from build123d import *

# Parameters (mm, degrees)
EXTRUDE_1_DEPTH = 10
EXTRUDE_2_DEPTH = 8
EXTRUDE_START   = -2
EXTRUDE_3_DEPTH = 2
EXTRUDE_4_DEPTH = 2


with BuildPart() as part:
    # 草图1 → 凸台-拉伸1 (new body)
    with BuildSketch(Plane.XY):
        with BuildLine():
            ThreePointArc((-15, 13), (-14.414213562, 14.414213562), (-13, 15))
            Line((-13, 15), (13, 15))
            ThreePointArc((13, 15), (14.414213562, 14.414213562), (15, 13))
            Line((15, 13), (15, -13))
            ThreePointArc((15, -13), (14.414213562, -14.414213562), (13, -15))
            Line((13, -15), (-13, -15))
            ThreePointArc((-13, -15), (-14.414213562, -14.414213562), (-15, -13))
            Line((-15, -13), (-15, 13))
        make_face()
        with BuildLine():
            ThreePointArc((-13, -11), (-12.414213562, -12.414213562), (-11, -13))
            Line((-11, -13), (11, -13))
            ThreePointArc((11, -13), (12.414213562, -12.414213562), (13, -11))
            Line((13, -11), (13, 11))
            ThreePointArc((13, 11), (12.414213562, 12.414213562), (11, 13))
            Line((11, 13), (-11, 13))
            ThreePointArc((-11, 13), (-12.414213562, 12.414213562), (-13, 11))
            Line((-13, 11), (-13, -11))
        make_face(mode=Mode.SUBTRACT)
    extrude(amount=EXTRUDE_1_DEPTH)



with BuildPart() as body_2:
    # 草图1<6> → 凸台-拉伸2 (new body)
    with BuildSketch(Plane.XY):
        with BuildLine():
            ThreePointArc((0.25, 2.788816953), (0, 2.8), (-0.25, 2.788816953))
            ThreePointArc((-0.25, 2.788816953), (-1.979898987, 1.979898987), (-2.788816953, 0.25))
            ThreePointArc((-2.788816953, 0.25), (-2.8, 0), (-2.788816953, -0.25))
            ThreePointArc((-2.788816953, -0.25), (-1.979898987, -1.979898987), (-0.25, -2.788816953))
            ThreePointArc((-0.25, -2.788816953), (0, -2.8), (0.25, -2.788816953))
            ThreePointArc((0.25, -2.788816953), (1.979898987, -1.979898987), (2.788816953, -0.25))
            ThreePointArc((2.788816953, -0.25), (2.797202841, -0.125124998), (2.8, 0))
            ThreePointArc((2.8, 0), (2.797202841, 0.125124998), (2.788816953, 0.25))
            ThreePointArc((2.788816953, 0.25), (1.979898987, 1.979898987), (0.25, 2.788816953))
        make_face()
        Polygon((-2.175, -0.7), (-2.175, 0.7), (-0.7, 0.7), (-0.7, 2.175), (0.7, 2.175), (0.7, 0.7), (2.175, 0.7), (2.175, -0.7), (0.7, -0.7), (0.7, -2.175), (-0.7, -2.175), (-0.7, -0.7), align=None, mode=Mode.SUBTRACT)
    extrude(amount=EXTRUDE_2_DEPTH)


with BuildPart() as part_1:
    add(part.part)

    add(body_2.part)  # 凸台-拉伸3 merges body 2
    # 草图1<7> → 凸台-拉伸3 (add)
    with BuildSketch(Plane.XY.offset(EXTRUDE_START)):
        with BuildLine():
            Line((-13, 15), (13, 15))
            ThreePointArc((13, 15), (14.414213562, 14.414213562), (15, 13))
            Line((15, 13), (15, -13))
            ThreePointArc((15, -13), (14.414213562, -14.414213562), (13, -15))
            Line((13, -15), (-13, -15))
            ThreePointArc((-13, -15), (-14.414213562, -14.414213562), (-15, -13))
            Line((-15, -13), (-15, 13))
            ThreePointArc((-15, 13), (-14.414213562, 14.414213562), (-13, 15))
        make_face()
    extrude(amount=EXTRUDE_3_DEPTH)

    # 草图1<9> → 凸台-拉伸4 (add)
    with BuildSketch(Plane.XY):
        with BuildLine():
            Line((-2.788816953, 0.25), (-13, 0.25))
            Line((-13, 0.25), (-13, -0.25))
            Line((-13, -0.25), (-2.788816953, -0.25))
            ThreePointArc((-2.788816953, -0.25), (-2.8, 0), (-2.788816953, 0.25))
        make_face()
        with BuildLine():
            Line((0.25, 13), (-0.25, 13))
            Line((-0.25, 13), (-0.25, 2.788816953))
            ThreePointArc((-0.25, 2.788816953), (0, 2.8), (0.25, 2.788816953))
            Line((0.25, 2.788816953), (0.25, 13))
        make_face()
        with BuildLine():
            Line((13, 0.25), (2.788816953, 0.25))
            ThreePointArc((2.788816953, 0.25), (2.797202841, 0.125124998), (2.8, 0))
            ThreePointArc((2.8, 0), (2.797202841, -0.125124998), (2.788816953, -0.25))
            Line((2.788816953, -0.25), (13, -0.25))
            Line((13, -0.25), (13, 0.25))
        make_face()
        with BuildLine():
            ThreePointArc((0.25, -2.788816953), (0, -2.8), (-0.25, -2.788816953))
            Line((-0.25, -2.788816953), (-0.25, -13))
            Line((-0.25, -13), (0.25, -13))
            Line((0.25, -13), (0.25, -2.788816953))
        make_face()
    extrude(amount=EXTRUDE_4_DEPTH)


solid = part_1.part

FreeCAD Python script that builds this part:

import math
import FreeCAD as App
import Part
import Sketcher
from FreeCAD import Vector
Q = App.Units.Quantity


def add_polygon(sketch, points):
    """Adds a closed chain of lines whose ends are joined by coincident constraints."""
    first, n = sketch.GeometryCount, len(points)
    for a, b in zip(points, points[1:] + points[:1]):
        sketch.addGeometry(Part.LineSegment(App.Vector(*a, 0), App.Vector(*b, 0)), False)
    for i in range(n):
        sketch.addConstraint(Sketcher.Constraint("Coincident", first + i, 2, first + (i + 1) % n, 1))

doc = App.newDocument("Part")
params = doc.addObject("Spreadsheet::Sheet", "Params")
for row, (alias, value) in enumerate([
    ("sketch1_radius", "2 mm"),
    ("sketch1_width", "26 mm"),
    ("pad1_length", "10 mm"),
    ("sketch2_radius", "2.8 mm"),
    ("sketch2_width", "1.4 mm"),
    ("pad2_length", "8 mm"),
    ("sketch3_radius", "2 mm"),
    ("sketch3_width", "26 mm"),
    ("pad3_length", "2 mm"),
    ("sketch4_radius", "2.8 mm"),
    ("sketch4_width", "0.5 mm"),
    ("pad4_length", "2 mm"),
], start=1):
    params.set(f"A{row}", alias)
    params.set(f"B{row}", "=" + value)
    params.setAlias(f"B{row}", alias)

body = doc.addObject("PartDesign::Body", "Body")

sketch1 = doc.addObject("Sketcher::SketchObject", "Sketch")
body.addObject(sketch1)
sketch1.AttachmentSupport = (doc.XY_Plane, [""])
sketch1.MapMode = "FlatFace"
sketch1.addGeometry(Part.ArcOfCircle(Part.Circle(Vector(-13, 13, 0), Vector(0, 0, 1), 2), math.radians(90), math.radians(180)), False)
sketch1.addGeometry(Part.LineSegment(Vector(-15, 13, 0), Vector(-15, -13, 0)), False)
sketch1.addGeometry(Part.ArcOfCircle(Part.Circle(Vector(-13, -13, 0), Vector(0, 0, 1), 2), math.radians(-180), math.radians(-90)), False)
sketch1.addGeometry(Part.LineSegment(Vector(-13, -15, 0), Vector(13, -15, 0)), False)
sketch1.addGeometry(Part.ArcOfCircle(Part.Circle(Vector(13, -13, 0), Vector(0, 0, 1), 2), math.radians(-90), math.radians(0)), False)
sketch1.addGeometry(Part.LineSegment(Vector(15, -13, 0), Vector(15, 13, 0)), False)
sketch1.addGeometry(Part.ArcOfCircle(Part.Circle(Vector(13, 13, 0), Vector(0, 0, 1), 2), math.radians(0), math.radians(90)), False)
sketch1.addGeometry(Part.LineSegment(Vector(13, 15, 0), Vector(-13, 15, 0)), False)
sketch1.addGeometry(Part.LineSegment(Vector(-13, -11, 0), Vector(-13, 11, 0)), False)
sketch1.addGeometry(Part.ArcOfCircle(Part.Circle(Vector(-11, 11, 0), Vector(0, 0, 1), 2), math.radians(90), math.radians(180)), False)
sketch1.addGeometry(Part.LineSegment(Vector(-11, 13, 0), Vector(11, 13, 0)), False)
sketch1.addGeometry(Part.ArcOfCircle(Part.Circle(Vector(11, 11, 0), Vector(0, 0, 1), 2), math.radians(0), math.radians(90)), False)
sketch1.addGeometry(Part.LineSegment(Vector(13, 11, 0), Vector(13, -11, 0)), False)
sketch1.addGeometry(Part.ArcOfCircle(Part.Circle(Vector(11, -11, 0), Vector(0, 0, 1), 2), math.radians(-90), math.radians(0)), False)
sketch1.addGeometry(Part.LineSegment(Vector(11, -13, 0), Vector(-11, -13, 0)), False)
sketch1.addGeometry(Part.ArcOfCircle(Part.Circle(Vector(-11, -11, 0), Vector(0, 0, 1), 2), math.radians(-180), math.radians(-90)), False)
sketch1.addConstraint(Sketcher.Constraint("Tangent", 0, 2, 1, 1))
sketch1.addConstraint(Sketcher.Constraint("Tangent", 1, 2, 2, 1))
sketch1.addConstraint(Sketcher.Constraint("Tangent", 2, 2, 3, 1))
sketch1.addConstraint(Sketcher.Constraint("Tangent", 3, 2, 4, 1))
sketch1.addConstraint(Sketcher.Constraint("Tangent", 4, 2, 5, 1))
sketch1.addConstraint(Sketcher.Constraint("Tangent", 5, 2, 6, 1))
sketch1.addConstraint(Sketcher.Constraint("Tangent", 6, 2, 7, 1))
sketch1.addConstraint(Sketcher.Constraint("Tangent", 7, 2, 0, 1))
sketch1.addConstraint(Sketcher.Constraint("Tangent", 8, 2, 9, 2))
sketch1.addConstraint(Sketcher.Constraint("Tangent", 9, 1, 10, 1))
sketch1.addConstraint(Sketcher.Constraint("Tangent", 10, 2, 11, 2))
sketch1.addConstraint(Sketcher.Constraint("Tangent", 11, 1, 12, 1))
sketch1.addConstraint(Sketcher.Constraint("Tangent", 12, 2, 13, 2))
sketch1.addConstraint(Sketcher.Constraint("Tangent", 13, 1, 14, 1))
sketch1.addConstraint(Sketcher.Constraint("Tangent", 14, 2, 15, 2))
sketch1.addConstraint(Sketcher.Constraint("Tangent", 15, 1, 8, 1))
sketch1.addConstraint(Sketcher.Constraint("Vertical", 1))
sketch1.addConstraint(Sketcher.Constraint("Horizontal", 3))
sketch1.addConstraint(Sketcher.Constraint("Vertical", 5))
sketch1.addConstraint(Sketcher.Constraint("Horizontal", 7))
sketch1.addConstraint(Sketcher.Constraint("Vertical", 8))
sketch1.addConstraint(Sketcher.Constraint("Horizontal", 10))
sketch1.addConstraint(Sketcher.Constraint("Vertical", 12))
sketch1.addConstraint(Sketcher.Constraint("Horizontal", 14))
sketch1.addConstraint(Sketcher.Constraint("Equal", 0, 2))
sketch1.addConstraint(Sketcher.Constraint("Equal", 2, 4))
sketch1.addConstraint(Sketcher.Constraint("Equal", 4, 6))
sketch1.addConstraint(Sketcher.Constraint("Equal", 6, 9))
sketch1.addConstraint(Sketcher.Constraint("Equal", 9, 11))
sketch1.addConstraint(Sketcher.Constraint("Equal", 11, 13))
sketch1.addConstraint(Sketcher.Constraint("Equal", 13, 15))
sketch1.addConstraint(Sketcher.Constraint("Symmetric", 0, 3, 4, 3, -1, 1))
sketch1.addConstraint(Sketcher.Constraint("Symmetric", 9, 3, 13, 3, -1, 1))
sketch1.addConstraint(Sketcher.Constraint("Horizontal", 5, 2, 9, 1))
sketch1.addConstraint(Sketcher.Constraint("Vertical", 7, 2, 8, 2))
sketch1.addConstraint(Sketcher.Constraint("Equal", 7, 1))
sketch1.addConstraint(Sketcher.Constraint("Radius", 0, Q("2 mm")))
sketch1.addConstraint(Sketcher.Constraint("DistanceX", 3, 1, 3, 2, Q("26 mm")))
sketch1.setExpression("Constraints[36]", "Params.sketch1_radius")
sketch1.setExpression("Constraints[37]", "Params.sketch1_width")
pad1 = doc.addObject("PartDesign::Pad", "Pad")
body.addObject(pad1)
pad1.Profile = sketch1
pad1.setExpression("Length", "Params.pad1_length")
body2 = doc.addObject("PartDesign::Body", "Body001")

sketch2 = doc.addObject("Sketcher::SketchObject", "Sketch001")
body2.addObject(sketch2)
sketch2.AttachmentSupport = (doc.getObject("XY_Plane001"), [""])
sketch2.MapMode = "FlatFace"
sketch2.addGeometry(Part.ArcOfCircle(Part.Circle(Vector(0, 0, 0), Vector(0, 0, 1), 2.8), math.radians(84.88), math.radians(95.12)), False)
sketch2.addGeometry(Part.ArcOfCircle(Part.Circle(Vector(0, 0, 0), Vector(0, 0, 1), 2.8), math.radians(95), math.radians(175)), False)
sketch2.addGeometry(Part.ArcOfCircle(Part.Circle(Vector(0, 0, 0), Vector(0, 0, 1), 2.8), math.radians(174.88), math.radians(185.12)), False)
sketch2.addGeometry(Part.ArcOfCircle(Part.Circle(Vector(0, 0, 0), Vector(0, 0, 1), 2.8), math.radians(-175), math.radians(-95)), False)
sketch2.addGeometry(Part.ArcOfCircle(Part.Circle(Vector(0, 0, 0), Vector(0, 0, 1), 2.8), math.radians(-95.12), math.radians(-84.88)), False)
sketch2.addGeometry(Part.ArcOfCircle(Part.Circle(Vector(0, 0, 0), Vector(0, 0, 1), 2.8), math.radians(-85), math.radians(-5)), False)
sketch2.addGeometry(Part.ArcOfCircle(Part.Circle(Vector(0, 0, 0), Vector(0, 0, 1), 2.8), math.radians(-5.12), math.radians(0)), False)
sketch2.addGeometry(Part.ArcOfCircle(Part.Circle(Vector(0, 0, 0), Vector(0, 0, 1), 2.8), math.radians(0), math.radians(5.12)), False)
sketch2.addGeometry(Part.ArcOfCircle(Part.Circle(Vector(0, 0, 0), Vector(0, 0, 1), 2.8), math.radians(5), math.radians(85)), False)
add_polygon(sketch2, [(-0.7, -0.7), (-2.17, -0.7), (-2.17, 0.7), (-0.7, 0.7), (-0.7, 2.17), (0.7, 2.17), (0.7, 0.7), (2.17, 0.7), (2.17, -0.7), (0.7, -0.7), (0.7, -2.17), (-0.7, -2.17)])
sketch2.addConstraint(Sketcher.Constraint("Tangent", 0, 2, 1, 1))
sketch2.addConstraint(Sketcher.Constraint("Tangent", 1, 2, 2, 1))
sketch2.addConstraint(Sketcher.Constraint("Tangent", 2, 2, 3, 1))
sketch2.addConstraint(Sketcher.Constraint("Tangent", 3, 2, 4, 1))
sketch2.addConstraint(Sketcher.Constraint("Tangent", 4, 2, 5, 1))
sketch2.addConstraint(Sketcher.Constraint("Tangent", 5, 2, 6, 1))
sketch2.addConstraint(Sketcher.Constraint("Tangent", 6, 2, 7, 1))
sketch2.addConstraint(Sketcher.Constraint("Tangent", 7, 2, 8, 1))
sketch2.addConstraint(Sketcher.Constraint("Tangent", 8, 2, 0, 1))
sketch2.addConstraint(Sketcher.Constraint("Horizontal", 9))
sketch2.addConstraint(Sketcher.Constraint("Vertical", 10))
sketch2.addConstraint(Sketcher.Constraint("Horizontal", 11))
sketch2.addConstraint(Sketcher.Constraint("Vertical", 12))
sketch2.addConstraint(Sketcher.Constraint("Horizontal", 13))
sketch2.addConstraint(Sketcher.Constraint("Vertical", 14))
sketch2.addConstraint(Sketcher.Constraint("Horizontal", 15))
sketch2.addConstraint(Sketcher.Constraint("Vertical", 16))
sketch2.addConstraint(Sketcher.Constraint("Horizontal", 17))
sketch2.addConstraint(Sketcher.Constraint("Vertical", 18))
sketch2.addConstraint(Sketcher.Constraint("Horizontal", 19))
sketch2.addConstraint(Sketcher.Constraint("Vertical", 20))
sketch2.addConstraint(Sketcher.Constraint("Coincident", 0, 3, -1, 1))
sketch2.addConstraint(Sketcher.Constraint("Coincident", 2, 3, -1, 1))
sketch2.addConstraint(Sketcher.Constraint("Coincident", 4, 3, -1, 1))
sketch2.addConstraint(Sketcher.Constraint("Coincident", 6, 3, -1, 1))
sketch2.addConstraint(Sketcher.Constraint("Symmetric", 9, 2, 15, 2, -1, 1))
sketch2.addConstraint(Sketcher.Constraint("Symmetric", 11, 2, 17, 2, -1, 1))
sketch2.addConstraint(Sketcher.Constraint("Symmetric", 13, 2, 19, 2, -1, 1))
sketch2.addConstraint(Sketcher.Constraint("Symmetric", 11, 2, 14, 2, -2))
sketch2.addConstraint(Sketcher.Constraint("PointOnObject", 6, 2, -1))
sketch2.addConstraint(Sketcher.Constraint("Horizontal", 3, 2, 4, 2))
sketch2.addConstraint(Sketcher.Constraint("Horizontal", 2, 2, 5, 2))
sketch2.addConstraint(Sketcher.Constraint("Horizontal", 1, 2, 7, 2))
sketch2.addConstraint(Sketcher.Constraint("Horizontal", 0, 2, 8, 2))
sketch2.addConstraint(Sketcher.Constraint("Vertical", 1, 2, 2, 2))
sketch2.addConstraint(Sketcher.Constraint("Vertical", 0, 2, 3, 2))
sketch2.addConstraint(Sketcher.Constraint("Equal", 19, 10))
sketch2.addConstraint(Sketcher.Constraint("Equal", 17, 12))
sketch2.addConstraint(Sketcher.Constraint("Radius", 0, Q("2.8 mm")))
sketch2.addConstraint(Sketcher.Constraint("DistanceX", 13, 1, 13, 2, Q("1.4 mm")))
sketch2.addConstraint(Sketcher.Constraint("DistanceY", 2, 2, 1, 2, Q("0.5 mm")))
sketch2.addConstraint(Sketcher.Constraint("DistanceX", 3, 2, 4, 2, Q("0.5 mm")))
sketch2.addConstraint(Sketcher.Constraint("DistanceX", 9, 2, 9, 1, Q("1.475 mm")))
sketch2.setExpression("Constraints[50]", "Params.sketch2_radius")
sketch2.setExpression("Constraints[51]", "Params.sketch2_width")
pad2 = doc.addObject("PartDesign::Pad", "Pad001")
body2.addObject(pad2)
pad2.Profile = sketch2
pad2.setExpression("Length", "Params.pad2_length")
body.AllowCompound = True
doc.recompute()

boolean = doc.addObject("PartDesign::Boolean", "Boolean")
body.addObject(boolean)
boolean.Type = "Fuse"
boolean.addObjects([body2])

sketch3 = doc.addObject("Sketcher::SketchObject", "Sketch002")
body.addObject(sketch3)
sketch3.AttachmentSupport = (doc.XY_Plane, [""])
sketch3.MapMode = "FlatFace"
sketch3.AttachmentOffset = App.Placement(Vector(0, 0, -2), App.Rotation())
sketch3.addGeometry(Part.LineSegment(Vector(13, 15, 0), Vector(-13, 15, 0)), False)
sketch3.addGeometry(Part.ArcOfCircle(Part.Circle(Vector(-13, 13, 0), Vector(0, 0, 1), 2), math.radians(90), math.radians(180)), False)
sketch3.addGeometry(Part.LineSegment(Vector(-15, 13, 0), Vector(-15, -13, 0)), False)
sketch3.addGeometry(Part.ArcOfCircle(Part.Circle(Vector(-13, -13, 0), Vector(0, 0, 1), 2), math.radians(-180), math.radians(-90)), False)
sketch3.addGeometry(Part.LineSegment(Vector(-13, -15, 0), Vector(13, -15, 0)), False)
sketch3.addGeometry(Part.ArcOfCircle(Part.Circle(Vector(13, -13, 0), Vector(0, 0, 1), 2), math.radians(-90), math.radians(0)), False)
sketch3.addGeometry(Part.LineSegment(Vector(15, -13, 0), Vector(15, 13, 0)), False)
sketch3.addGeometry(Part.ArcOfCircle(Part.Circle(Vector(13, 13, 0), Vector(0, 0, 1), 2), math.radians(0), math.radians(90)), False)
sketch3.addConstraint(Sketcher.Constraint("Tangent", 0, 2, 1, 1))
sketch3.addConstraint(Sketcher.Constraint("Tangent", 1, 2, 2, 1))
sketch3.addConstraint(Sketcher.Constraint("Tangent", 2, 2, 3, 1))
sketch3.addConstraint(Sketcher.Constraint("Tangent", 3, 2, 4, 1))
sketch3.addConstraint(Sketcher.Constraint("Tangent", 4, 2, 5, 1))
sketch3.addConstraint(Sketcher.Constraint("Tangent", 5, 2, 6, 1))
sketch3.addConstraint(Sketcher.Constraint("Tangent", 6, 2, 7, 1))
sketch3.addConstraint(Sketcher.Constraint("Tangent", 7, 2, 0, 1))
sketch3.addConstraint(Sketcher.Constraint("Horizontal", 0))
sketch3.addConstraint(Sketcher.Constraint("Vertical", 2))
sketch3.addConstraint(Sketcher.Constraint("Horizontal", 4))
sketch3.addConstraint(Sketcher.Constraint("Vertical", 6))
sketch3.addConstraint(Sketcher.Constraint("Equal", 1, 3))
sketch3.addConstraint(Sketcher.Constraint("Equal", 3, 5))
sketch3.addConstraint(Sketcher.Constraint("Equal", 5, 7))
sketch3.addConstraint(Sketcher.Constraint("Symmetric", 1, 3, 5, 3, -1, 1))
sketch3.addConstraint(Sketcher.Constraint("Equal", 4, 2))
sketch3.addConstraint(Sketcher.Constraint("Radius", 1, Q("2 mm")))
sketch3.addConstraint(Sketcher.Constraint("DistanceX", 0, 2, 0, 1, Q("26 mm")))
sketch3.setExpression("Constraints[17]", "Params.sketch3_radius")
sketch3.setExpression("Constraints[18]", "Params.sketch3_width")
pad3 = doc.addObject("PartDesign::Pad", "Pad002")
body.addObject(pad3)
pad3.Profile = sketch3
pad3.setExpression("Length", "Params.pad3_length")

sketch4 = doc.addObject("Sketcher::SketchObject", "Sketch003")
body.addObject(sketch4)
sketch4.AttachmentSupport = (doc.XY_Plane, [""])
sketch4.MapMode = "FlatFace"
sketch4.addGeometry(Part.LineSegment(Vector(-2.79, 0.25, 0), Vector(-13, 0.25, 0)), False)
sketch4.addGeometry(Part.LineSegment(Vector(-13, 0.25, 0), Vector(-13, -0.25, 0)), False)
sketch4.addGeometry(Part.LineSegment(Vector(-13, -0.25, 0), Vector(-2.79, -0.25, 0)), False)
sketch4.addGeometry(Part.ArcOfCircle(Part.Circle(Vector(0, 0, 0), Vector(0, 0, 1), 2.8), math.radians(174.88), math.radians(185.12)), False)
sketch4.addGeometry(Part.LineSegment(Vector(0.25, 13, 0), Vector(-0.25, 13, 0)), False)
sketch4.addGeometry(Part.LineSegment(Vector(-0.25, 13, 0), Vector(-0.25, 2.79, 0)), False)
sketch4.addGeometry(Part.ArcOfCircle(Part.Circle(Vector(0, 0, 0), Vector(0, 0, 1), 2.8), math.radians(84.88), math.radians(95.12)), False)
sketch4.addGeometry(Part.LineSegment(Vector(0.25, 2.79, 0), Vector(0.25, 13, 0)), False)
sketch4.addGeometry(Part.LineSegment(Vector(13, 0.25, 0), Vector(2.79, 0.25, 0)), False)
sketch4.addGeometry(Part.ArcOfCircle(Part.Circle(Vector(0, 0, 0), Vector(0, 0, 1), 2.8), math.radians(0), math.radians(5.12)), False)
sketch4.addGeometry(Part.ArcOfCircle(Part.Circle(Vector(0, 0, 0), Vector(0, 0, 1), 2.8), math.radians(-5.12), math.radians(0)), False)
sketch4.addGeometry(Part.LineSegment(Vector(2.79, -0.25, 0), Vector(13, -0.25, 0)), False)
sketch4.addGeometry(Part.LineSegment(Vector(13, -0.25, 0), Vector(13, 0.25, 0)), False)
sketch4.addGeometry(Part.ArcOfCircle(Part.Circle(Vector(0, 0, 0), Vector(0, 0, 1), 2.8), math.radians(-95.12), math.radians(-84.88)), False)
sketch4.addGeometry(Part.LineSegment(Vector(-0.25, -2.79, 0), Vector(-0.25, -13, 0)), False)
sketch4.addGeometry(Part.LineSegment(Vector(-0.25, -13, 0), Vector(0.25, -13, 0)), False)
sketch4.addGeometry(Part.LineSegment(Vector(0.25, -13, 0), Vector(0.25, -2.79, 0)), False)
sketch4.addConstraint(Sketcher.Constraint("Coincident", 0, 2, 1, 1))
sketch4.addConstraint(Sketcher.Constraint("Coincident", 1, 2, 2, 1))
sketch4.addConstraint(Sketcher.Constraint("Coincident", 2, 2, 3, 2))
sketch4.addConstraint(Sketcher.Constraint("Coincident", 3, 1, 0, 1))
sketch4.addConstraint(Sketcher.Constraint("Coincident", 4, 2, 5, 1))
sketch4.addConstraint(Sketcher.Constraint("Coincident", 5, 2, 6, 2))
sketch4.addConstraint(Sketcher.Constraint("Coincident", 6, 1, 7, 1))
sketch4.addConstraint(Sketcher.Constraint("Coincident", 7, 2, 4, 1))
sketch4.addConstraint(Sketcher.Constraint("Coincident", 8, 2, 9, 2))
sketch4.addConstraint(Sketcher.Constraint("Tangent", 9, 1, 10, 2))
sketch4.addConstraint(Sketcher.Constraint("Coincident", 10, 1, 11, 1))
sketch4.addConstraint(Sketcher.Constraint("Coincident", 11, 2, 12, 1))
sketch4.addConstraint(Sketcher.Constraint("Coincident", 12, 2, 8, 1))
sketch4.addConstraint(Sketcher.Constraint("Coincident", 13, 1, 14, 1))
sketch4.addConstraint(Sketcher.Constraint("Coincident", 14, 2, 15, 1))
sketch4.addConstraint(Sketcher.Constraint("Coincident", 15, 2, 16, 1))
sketch4.addConstraint(Sketcher.Constraint("Coincident", 16, 2, 13, 2))
sketch4.addConstraint(Sketcher.Constraint("Horizontal", 0))
sketch4.addConstraint(Sketcher.Constraint("Vertical", 1))
sketch4.addConstraint(Sketcher.Constraint("Horizontal", 2))
sketch4.addConstraint(Sketcher.Constraint("Horizontal", 4))
sketch4.addConstraint(Sketcher.Constraint("Vertical", 5))
sketch4.addConstraint(Sketcher.Constraint("Vertical", 7))
sketch4.addConstraint(Sketcher.Constraint("Horizontal", 8))
sketch4.addConstraint(Sketcher.Constraint("Horizontal", 11))
sketch4.addConstraint(Sketcher.Constraint("Vertical", 12))
sketch4.addConstraint(Sketcher.Constraint("Vertical", 14))
sketch4.addConstraint(Sketcher.Constraint("Horizontal", 15))
sketch4.addConstraint(Sketcher.Constraint("Vertical", 16))
sketch4.addConstraint(Sketcher.Constraint("Coincident", 3, 3, -1, 1))
sketch4.addConstraint(Sketcher.Constraint("Coincident", 6, 3, -1, 1))
sketch4.addConstraint(Sketcher.Constraint("Coincident", 9, 3, -1, 1))
sketch4.addConstraint(Sketcher.Constraint("Coincident", 13, 3, -1, 1))
sketch4.addConstraint(Sketcher.Constraint("Equal", 3, 6))
sketch4.addConstraint(Sketcher.Constraint("Equal", 6, 9))
sketch4.addConstraint(Sketcher.Constraint("Equal", 9, 10))
sketch4.addConstraint(Sketcher.Constraint("Equal", 10, 13))
sketch4.addConstraint(Sketcher.Constraint("Symmetric", 0, 2, 11, 2, -1, 1))
sketch4.addConstraint(Sketcher.Constraint("Symmetric", 7, 2, 14, 2, -1, 1))
sketch4.addConstraint(Sketcher.Constraint("PointOnObject", 9, 1, -1))
sketch4.addConstraint(Sketcher.Constraint("Horizontal", 5, 2, 6, 1))
sketch4.addConstraint(Sketcher.Constraint("Horizontal", 3, 1, 8, 2))
sketch4.addConstraint(Sketcher.Constraint("Horizontal", 2, 2, 10, 1))
sketch4.addConstraint(Sketcher.Constraint("Horizontal", 13, 1, 16, 2))
sketch4.addConstraint(Sketcher.Constraint("Equal", 15, 1))
sketch4.addConstraint(Sketcher.Constraint("Equal", 11, 5))
sketch4.addConstraint(Sketcher.Constraint("Radius", 3, Q("2.8 mm")))
sketch4.addConstraint(Sketcher.Constraint("DistanceX", 4, 2, 4, 1, Q("0.5 mm")))
sketch4.addConstraint(Sketcher.Constraint("DistanceX", 0, 2, -1, 1, Q("13 mm")))
sketch4.setExpression("Constraints[46]", "Params.sketch4_radius")
sketch4.setExpression("Constraints[47]", "Params.sketch4_width")
pad4 = doc.addObject("PartDesign::Pad", "Pad003")
body.addObject(pad4)
pad4.Profile = sketch4
pad4.setExpression("Length", "Params.pad4_length")

doc.recompute()
